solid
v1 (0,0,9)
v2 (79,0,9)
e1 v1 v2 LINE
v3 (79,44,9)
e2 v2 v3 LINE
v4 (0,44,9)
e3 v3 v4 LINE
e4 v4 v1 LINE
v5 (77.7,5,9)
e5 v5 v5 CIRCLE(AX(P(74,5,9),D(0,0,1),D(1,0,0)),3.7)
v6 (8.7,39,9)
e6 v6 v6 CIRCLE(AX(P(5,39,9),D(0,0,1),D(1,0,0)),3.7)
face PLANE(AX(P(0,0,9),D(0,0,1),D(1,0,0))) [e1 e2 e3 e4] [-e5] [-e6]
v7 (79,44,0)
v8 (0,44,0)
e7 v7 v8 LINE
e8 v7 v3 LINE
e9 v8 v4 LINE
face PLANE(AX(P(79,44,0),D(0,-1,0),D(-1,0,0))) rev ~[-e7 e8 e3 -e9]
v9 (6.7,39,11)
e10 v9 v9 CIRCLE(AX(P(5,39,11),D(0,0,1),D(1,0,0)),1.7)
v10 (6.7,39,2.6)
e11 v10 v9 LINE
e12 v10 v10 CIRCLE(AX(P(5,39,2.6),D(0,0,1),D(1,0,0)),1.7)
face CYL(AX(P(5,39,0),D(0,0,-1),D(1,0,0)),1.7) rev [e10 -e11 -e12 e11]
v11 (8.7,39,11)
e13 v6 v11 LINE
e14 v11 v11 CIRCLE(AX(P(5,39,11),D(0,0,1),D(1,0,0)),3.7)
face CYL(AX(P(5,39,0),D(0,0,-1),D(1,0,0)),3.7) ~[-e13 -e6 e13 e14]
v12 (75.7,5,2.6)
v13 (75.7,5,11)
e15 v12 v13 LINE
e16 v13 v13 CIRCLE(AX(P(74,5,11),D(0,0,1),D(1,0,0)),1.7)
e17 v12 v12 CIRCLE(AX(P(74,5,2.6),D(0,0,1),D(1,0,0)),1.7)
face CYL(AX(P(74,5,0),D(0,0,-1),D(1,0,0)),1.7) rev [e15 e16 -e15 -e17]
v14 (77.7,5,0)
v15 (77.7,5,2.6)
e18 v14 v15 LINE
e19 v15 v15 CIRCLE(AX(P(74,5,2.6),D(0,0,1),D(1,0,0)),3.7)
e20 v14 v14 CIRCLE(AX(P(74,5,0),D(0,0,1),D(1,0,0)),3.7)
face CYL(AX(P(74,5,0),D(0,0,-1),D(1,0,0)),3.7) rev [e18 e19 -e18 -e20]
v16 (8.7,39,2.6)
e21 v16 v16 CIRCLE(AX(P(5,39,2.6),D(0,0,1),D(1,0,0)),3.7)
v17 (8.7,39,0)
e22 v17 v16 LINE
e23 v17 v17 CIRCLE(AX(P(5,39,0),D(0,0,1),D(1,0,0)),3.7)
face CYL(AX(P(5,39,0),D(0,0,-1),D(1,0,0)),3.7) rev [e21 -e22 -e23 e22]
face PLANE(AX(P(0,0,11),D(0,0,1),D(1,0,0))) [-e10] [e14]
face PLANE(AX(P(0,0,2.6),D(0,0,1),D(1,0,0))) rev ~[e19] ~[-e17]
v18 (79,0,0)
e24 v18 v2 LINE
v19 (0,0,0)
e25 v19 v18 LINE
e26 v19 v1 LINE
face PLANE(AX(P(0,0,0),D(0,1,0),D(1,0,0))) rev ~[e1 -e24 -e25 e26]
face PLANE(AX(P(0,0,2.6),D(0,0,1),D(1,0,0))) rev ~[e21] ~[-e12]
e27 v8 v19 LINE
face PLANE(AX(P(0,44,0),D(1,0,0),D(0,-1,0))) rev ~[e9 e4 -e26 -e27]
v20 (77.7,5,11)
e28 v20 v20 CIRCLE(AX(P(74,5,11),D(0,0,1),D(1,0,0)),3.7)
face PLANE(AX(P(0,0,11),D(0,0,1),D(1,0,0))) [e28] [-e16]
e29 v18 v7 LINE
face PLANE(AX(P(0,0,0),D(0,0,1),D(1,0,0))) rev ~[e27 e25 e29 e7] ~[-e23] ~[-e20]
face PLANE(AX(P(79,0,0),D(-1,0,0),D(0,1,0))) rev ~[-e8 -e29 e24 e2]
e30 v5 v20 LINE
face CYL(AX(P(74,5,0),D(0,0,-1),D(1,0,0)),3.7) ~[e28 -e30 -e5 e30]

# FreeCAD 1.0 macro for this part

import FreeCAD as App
import Part
import Sketcher

V = App.Vector
Q = App.Units.Quantity

doc = App.newDocument("Part")
params = doc.addObject("Spreadsheet::Sheet", "Params")
for row, (alias, value) in enumerate([
    ("sketch1_diameter", "7.4 mm"),
    ("sketch1_diameter2", "3.4 mm"),
    ("pad1_length", "11 mm"),
    ("sketch2_diameter", "7.4 mm"),
    ("sketch2_width", "79 mm"),
    ("sketch2_height", "44 mm"),
    ("pad2_length", "9 mm"),
    ("sketch3_diameter", "7.4 mm"),
    ("sketch3_diameter2", "3.4 mm"),
    ("pocket1_length", "2.6 mm"),
    ("sketch4_diameter", "7.4 mm"),
    ("sketch4_diameter2", "3.4 mm"),
    ("pocket2_length", "2.6 mm"),
], start=1):
    params.set(f"A{row}", alias)
    params.set(f"B{row}", "=" + value)
    params.setAlias(f"B{row}", alias)

body = doc.addObject("PartDesign::Body", "Body")
body.AllowCompound = True

sketch1 = doc.addObject("Sketcher::SketchObject", "Sketch")
body.addObject(sketch1)
sketch1.AttachmentSupport = (doc.XY_Plane, [""])
sketch1.MapMode = "FlatFace"
sketch1.addGeometry(Part.Circle(V(5, 39, 0), V(0, 0, 1), 3.7), False)
sketch1.addGeometry(Part.Circle(V(5, 39, 0), V(0, 0, 1), 1.7), False)
sketch1.addGeometry(Part.Circle(V(74, 5, 0), V(0, 0, 1), 3.7), False)
sketch1.addGeometry(Part.Circle(V(74, 5, 0), V(0, 0, 1), 1.7), False)
sketch1.addConstraint(Sketcher.Constraint("Coincident", 1, 3, 0, 3))
sketch1.addConstraint(Sketcher.Constraint("Coincident", 3, 3, 2, 3))
sketch1.addConstraint(Sketcher.Constraint("Equal", 0, 2))
sketch1.addConstraint(Sketcher.Constraint("Equal", 1, 3))
sketch1.addConstraint(Sketcher.Constraint("Diameter", 0, Q("7.4 mm")))
sketch1.addConstraint(Sketcher.Constraint("Diameter", 1, Q("3.4 mm")))
sketch1.addConstraint(Sketcher.Constraint("DistanceX", -1, 1, 0, 3, Q("5 mm")))
sketch1.addConstraint(Sketcher.Constraint("DistanceY", -1, 1, 0, 3, Q("39 mm")))
sketch1.addConstraint(Sketcher.Constraint("DistanceX", -1, 1, 2, 3, Q("74 mm")))
sketch1.addConstraint(Sketcher.Constraint("DistanceY", -1, 1, 2, 3, Q("5 mm")))
sketch1.setExpression("Constraints[4]", "Params.sketch1_diameter")
sketch1.setExpression("Constraints[5]", "Params.sketch1_diameter2")
pad1 = doc.addObject("PartDesign::Pad", "Pad")
body.addObject(pad1)
pad1.Profile = sketch1
pad1.setExpression("Length", "Params.pad1_length")

sketch2 = doc.addObject("Sketcher::SketchObject", "Sketch001")
body.addObject(sketch2)
sketch2.AttachmentSupport = (doc.XY_Plane, [""])
sketch2.MapMode = "FlatFace"
sketch2.addGeometry(Part.LineSegment(V(0, 44, 0), V(0, 0, 0)), False)
sketch2.addGeometry(Part.LineSegment(V(0, 0, 0), V(79, 0, 0)), False)
sketch2.addGeometry(Part.LineSegment(V(79, 0, 0), V(79, 44, 0)), False)
sketch2.addGeometry(Part.LineSegment(V(79, 44, 0), V(0, 44, 0)), False)
sketch2.addGeometry(Part.Circle(V(74, 5, 0), V(0, 0, 1), 3.7), False)
sketch2.addGeometry(Part.Circle(V(5, 39, 0), V(0, 0, 1), 3.7), False)
sketch2.addConstraint(Sketcher.Constraint("Coincident", 0, 2, 1, 1))
sketch2.addConstraint(Sketcher.Constraint("Coincident", 1, 2, 2, 1))
sketch2.addConstraint(Sketcher.Constraint("Coincident", 2, 2, 3, 1))
sketch2.addConstraint(Sketcher.Constraint("Coincident", 3, 2, 0, 1))
sketch2.addConstraint(Sketcher.Constraint("Vertical", 0))
sketch2.addConstraint(Sketcher.Constraint("Horizontal", 1))
sketch2.addConstraint(Sketcher.Constraint("Vertical", 2))
sketch2.addConstraint(Sketcher.Constraint("Horizontal", 3))
sketch2.addConstraint(Sketcher.Constraint("Coincident", 0, 2, -1, 1))
sketch2.addConstraint(Sketcher.Constraint("Equal", 4, 5))
sketch2.addConstraint(Sketcher.Constraint("Diameter", 4, Q("7.4 mm")))
sketch2.addConstraint(Sketcher.Constraint("DistanceX", 1, 1, 1, 2, Q("79 mm")))
sketch2.addConstraint(Sketcher.Constraint("DistanceY", 0, 2, 0, 1, Q("44 mm")))
sketch2.addConstraint(Sketcher.Constraint("DistanceX", -1, 1, 4, 3, Q("74 mm")))
sketch2.addConstraint(Sketcher.Constraint("DistanceY", -1, 1, 4, 3, Q("5 mm")))
sketch2.addConstraint(Sketcher.Constraint("DistanceX", -1, 1, 5, 3, Q("5 mm")))
sketch2.addConstraint(Sketcher.Constraint("DistanceY", -1, 1, 5, 3, Q("39 mm")))
sketch2.setExpression("Constraints[10]", "Params.sketch2_diameter")
sketch2.setExpression("Constraints[11]", "Params.sketch2_width")
sketch2.setExpression("Constraints[12]", "Params.sketch2_height")
pad2 = doc.addObject("PartDesign::Pad", "Pad001")
body.addObject(pad2)
pad2.Profile = sketch2
pad2.setExpression("Length", "Params.pad2_length")

sketch3 = doc.addObject("Sketcher::SketchObject", "Sketch002")
body.addObject(sketch3)
sketch3.AttachmentSupport = (doc.XY_Plane, [""])
sketch3.MapMode = "FlatFace"
sketch3.addGeometry(Part.Circle(V(5, 39, 0), V(0, 0, 1), 3.7), False)
sketch3.addGeometry(Part.Circle(V(5, 39, 0), V(0, 0, 1), 1.7), False)
sketch3.addConstraint(Sketcher.Constraint("Coincident", 1, 3, 0, 3))
sketch3.addConstraint(Sketcher.Constraint("Diameter", 0, Q("7.4 mm")))
sketch3.addConstraint(Sketcher.Constraint("Diameter", 1, Q("3.4 mm")))
sketch3.addConstraint(Sketcher.Constraint("DistanceX", -1, 1, 0, 3, Q("5 mm")))
sketch3.addConstraint(Sketcher.Constraint("DistanceY", -1, 1, 0, 3, Q("39 mm")))
sketch3.setExpression("Constraints[1]", "Params.sketch3_diameter")
sketch3.setExpression("Constraints[2]", "Params.sketch3_diameter2")
pocket1 = doc.addObject("PartDesign::Pocket", "Pocket")
body.addObject(pocket1)
pocket1.Profile = sketch3
pocket1.setExpression("Length", "Params.pocket1_length")
pocket1.Reversed = True

sketch4 = doc.addObject("Sketcher::SketchObject", "Sketch003")
body.addObject(sketch4)
sketch4.AttachmentSupport = (doc.XY_Plane, [""])
sketch4.MapMode = "FlatFace"
sketch4.addGeometry(Part.Circle(V(5, 39, 0), V(0, 0, 1), 3.7), False)
sketch4.addGeometry(Part.Circle(V(74, 5, 0), V(0, 0, 1), 3.7), False)
sketch4.addGeometry(Part.Circle(V(74, 5, 0), V(0, 0, 1), 1.7), False)
sketch4.addConstraint(Sketcher.Constraint("Coincident", 2, 3, 1, 3))
sketch4.addConstraint(Sketcher.Constraint("Equal", 0, 1))
sketch4.addConstraint(Sketcher.Constraint("Diameter", 0, Q("7.4 mm")))
sketch4.addConstraint(Sketcher.Constraint("Diameter", 2, Q("3.4 mm")))
sketch4.addConstraint(Sketcher.Constraint("DistanceX", -1, 1, 0, 3, Q("5 mm")))
sketch4.addConstraint(Sketcher.Constraint("DistanceY", -1, 1, 0, 3, Q("39 mm")))
sketch4.addConstraint(Sketcher.Constraint("DistanceX", -1, 1, 1, 3, Q("74 mm")))
sketch4.addConstraint(Sketcher.Constraint("DistanceY", -1, 1, 1, 3, Q("5 mm")))
sketch4.setExpression("Constraints[2]", "Params.sketch4_diameter")
sketch4.setExpression("Constraints[3]", "Params.sketch4_diameter2")
pocket2 = doc.addObject("PartDesign::Pocket", "Pocket001")
body.addObject(pocket2)
pocket2.Profile = sketch4
pocket2.setExpression("Length", "Params.pocket2_length")
pocket2.Reversed = True

doc.recompute()
